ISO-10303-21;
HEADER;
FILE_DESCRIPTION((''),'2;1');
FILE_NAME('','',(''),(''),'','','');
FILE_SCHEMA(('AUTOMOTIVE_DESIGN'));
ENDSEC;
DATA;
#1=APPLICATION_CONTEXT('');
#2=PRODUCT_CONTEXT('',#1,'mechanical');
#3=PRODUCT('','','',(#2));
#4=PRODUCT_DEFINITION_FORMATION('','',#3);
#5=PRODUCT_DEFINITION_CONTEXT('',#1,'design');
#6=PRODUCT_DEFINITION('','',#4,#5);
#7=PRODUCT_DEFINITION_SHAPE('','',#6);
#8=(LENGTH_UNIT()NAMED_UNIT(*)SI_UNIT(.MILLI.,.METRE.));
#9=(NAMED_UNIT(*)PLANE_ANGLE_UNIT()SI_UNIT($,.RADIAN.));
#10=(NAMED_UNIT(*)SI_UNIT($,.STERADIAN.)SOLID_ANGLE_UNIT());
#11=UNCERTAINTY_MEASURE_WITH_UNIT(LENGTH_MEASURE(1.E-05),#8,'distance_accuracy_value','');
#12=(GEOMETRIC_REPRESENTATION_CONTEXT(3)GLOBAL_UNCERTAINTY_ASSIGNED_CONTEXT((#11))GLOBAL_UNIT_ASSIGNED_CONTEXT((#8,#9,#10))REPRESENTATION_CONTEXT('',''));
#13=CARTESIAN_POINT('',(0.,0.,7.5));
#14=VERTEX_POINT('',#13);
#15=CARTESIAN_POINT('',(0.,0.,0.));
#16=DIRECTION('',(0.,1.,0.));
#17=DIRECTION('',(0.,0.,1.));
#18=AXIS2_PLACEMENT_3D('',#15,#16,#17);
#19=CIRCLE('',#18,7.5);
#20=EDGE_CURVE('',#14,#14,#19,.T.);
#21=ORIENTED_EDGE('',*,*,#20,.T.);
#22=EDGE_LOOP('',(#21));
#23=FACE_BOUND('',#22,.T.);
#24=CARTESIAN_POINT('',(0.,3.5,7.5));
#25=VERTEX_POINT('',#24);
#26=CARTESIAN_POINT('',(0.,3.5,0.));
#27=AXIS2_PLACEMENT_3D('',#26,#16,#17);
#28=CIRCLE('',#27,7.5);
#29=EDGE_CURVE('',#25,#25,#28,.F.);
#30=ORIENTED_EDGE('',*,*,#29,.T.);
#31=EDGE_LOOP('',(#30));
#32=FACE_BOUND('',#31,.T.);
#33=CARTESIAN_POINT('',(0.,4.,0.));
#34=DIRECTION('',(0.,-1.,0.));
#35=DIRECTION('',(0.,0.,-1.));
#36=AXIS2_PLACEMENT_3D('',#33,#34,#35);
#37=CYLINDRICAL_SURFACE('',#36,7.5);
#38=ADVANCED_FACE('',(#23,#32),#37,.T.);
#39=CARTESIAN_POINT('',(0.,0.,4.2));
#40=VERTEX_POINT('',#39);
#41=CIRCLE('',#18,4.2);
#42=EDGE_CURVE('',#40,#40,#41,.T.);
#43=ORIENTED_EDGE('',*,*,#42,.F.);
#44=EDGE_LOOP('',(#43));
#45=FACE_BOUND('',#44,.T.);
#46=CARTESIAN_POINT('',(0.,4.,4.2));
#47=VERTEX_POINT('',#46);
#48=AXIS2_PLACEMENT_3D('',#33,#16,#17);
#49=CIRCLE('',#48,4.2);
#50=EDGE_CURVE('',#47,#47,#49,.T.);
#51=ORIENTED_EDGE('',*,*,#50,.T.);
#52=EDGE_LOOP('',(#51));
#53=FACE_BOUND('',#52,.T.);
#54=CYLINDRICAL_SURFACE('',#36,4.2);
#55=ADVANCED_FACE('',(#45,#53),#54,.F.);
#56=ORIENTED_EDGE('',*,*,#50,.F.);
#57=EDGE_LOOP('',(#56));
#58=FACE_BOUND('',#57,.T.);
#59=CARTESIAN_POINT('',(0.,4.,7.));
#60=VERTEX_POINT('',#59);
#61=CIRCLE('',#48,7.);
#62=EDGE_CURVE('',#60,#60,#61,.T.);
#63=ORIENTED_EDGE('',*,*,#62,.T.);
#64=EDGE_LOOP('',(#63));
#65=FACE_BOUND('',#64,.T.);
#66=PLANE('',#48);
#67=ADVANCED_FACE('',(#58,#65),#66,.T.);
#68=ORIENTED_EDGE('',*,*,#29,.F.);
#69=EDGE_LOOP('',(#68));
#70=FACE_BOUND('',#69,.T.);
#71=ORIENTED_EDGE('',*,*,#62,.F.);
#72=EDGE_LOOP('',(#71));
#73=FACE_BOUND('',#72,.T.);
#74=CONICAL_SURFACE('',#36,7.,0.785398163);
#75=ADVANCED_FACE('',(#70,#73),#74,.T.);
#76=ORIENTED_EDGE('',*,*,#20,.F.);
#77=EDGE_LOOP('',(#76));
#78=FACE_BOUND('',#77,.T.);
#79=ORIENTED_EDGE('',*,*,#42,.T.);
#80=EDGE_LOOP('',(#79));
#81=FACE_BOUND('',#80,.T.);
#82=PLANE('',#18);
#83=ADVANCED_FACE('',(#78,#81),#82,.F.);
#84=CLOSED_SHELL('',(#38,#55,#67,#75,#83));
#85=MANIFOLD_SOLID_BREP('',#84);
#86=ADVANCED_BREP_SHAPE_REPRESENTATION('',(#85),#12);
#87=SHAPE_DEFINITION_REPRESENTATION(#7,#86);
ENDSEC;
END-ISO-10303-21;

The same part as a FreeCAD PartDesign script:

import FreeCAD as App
import Part
import Sketcher
from FreeCAD import Vector


def edges_at(feature, points):
    """Names of the edges that pass closest to the given points."""
    edges = feature.Shape.Edges
    near = lambda p: min(range(len(edges)), key=lambda i: edges[i].distToShape(Part.Vertex(*p))[0])
    return sorted({f"Edge{near(p) + 1}" for p in points})

doc = App.newDocument("Part")
params = doc.addObject("Spreadsheet::Sheet", "Params")
for row, (alias, value) in enumerate([
    ("sketch1_diameter", "15 mm"),
    ("sketch1_diameter2", "8.4 mm"),
    ("pad1_length", "4 mm"),
    ("chamfer_size", "0.5 mm"),
], start=1):
    params.set(f"A{row}", alias)
    params.set(f"B{row}", "=" + value)
    params.setAlias(f"B{row}", alias)

body = doc.addObject("PartDesign::Body", "Body")

# Sketch on XZ plane
sketch1 = doc.addObject("Sketcher::SketchObject", "Sketch")
body.addObject(sketch1)
sketch1.AttachmentSupport = (doc.XZ_Plane, [""])
sketch1.MapMode = "FlatFace"
sketch1.addGeometry([
    Part.Circle(Vector(0, 0, 0), Vector(0, 0, 1), 7.5),
    Part.Circle(Vector(0, 0, 0), Vector(0, 0, 1), 4.2),
], False)
sketch1.addConstraint([
    Sketcher.Constraint("Coincident", 0, 3, -1, 1),
    Sketcher.Constraint("Coincident", 1, 3, -1, 1),
    Sketcher.Constraint("Diameter", 0, 15.0),
    Sketcher.Constraint("Diameter", 1, 8.4),
])
sketch1.setExpression("Constraints[2]", "Params.sketch1_diameter")
sketch1.setExpression("Constraints[3]", "Params.sketch1_diameter2")
pad1 = doc.addObject("PartDesign::Pad", "Pad")
body.addObject(pad1)
pad1.Profile = sketch1
pad1.setExpression("Length", "Params.pad1_length")
pad1.Reversed = True
doc.recompute()

chamfer = doc.addObject("PartDesign::Chamfer", "Chamfer")
body.addObject(chamfer)
chamfer.Base = (pad1, edges_at(pad1, [(-7.5, 4, 0)]))
chamfer.setExpression("Size", "Params.chamfer_size")

doc.recompute()
